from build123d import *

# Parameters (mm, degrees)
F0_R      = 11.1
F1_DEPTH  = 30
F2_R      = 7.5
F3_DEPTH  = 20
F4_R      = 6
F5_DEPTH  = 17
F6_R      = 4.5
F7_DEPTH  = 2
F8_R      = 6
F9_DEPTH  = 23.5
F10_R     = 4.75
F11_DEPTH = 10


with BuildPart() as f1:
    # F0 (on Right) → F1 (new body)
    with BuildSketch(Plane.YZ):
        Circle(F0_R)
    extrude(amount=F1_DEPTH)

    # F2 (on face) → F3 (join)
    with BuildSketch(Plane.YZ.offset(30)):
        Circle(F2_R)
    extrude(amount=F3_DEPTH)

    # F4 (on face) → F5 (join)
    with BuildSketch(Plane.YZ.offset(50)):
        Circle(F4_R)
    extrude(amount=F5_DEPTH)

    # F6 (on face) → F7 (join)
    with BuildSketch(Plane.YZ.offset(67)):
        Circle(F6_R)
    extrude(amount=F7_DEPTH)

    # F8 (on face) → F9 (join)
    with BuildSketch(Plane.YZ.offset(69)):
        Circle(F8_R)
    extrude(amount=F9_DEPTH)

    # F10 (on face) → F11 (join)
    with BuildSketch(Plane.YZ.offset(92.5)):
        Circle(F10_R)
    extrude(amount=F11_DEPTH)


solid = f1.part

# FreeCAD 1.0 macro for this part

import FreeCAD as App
import Part
import Sketcher

V = App.Vector

doc = App.newDocument("Part")
body = doc.addObject("PartDesign::Body", "Body")

sketch1 = body.newObject("Sketcher::SketchObject", "Sketch")
sketch1.AttachmentSupport = (doc.getObject("YZ_Plane"), [""])
sketch1.MapMode = "FlatFace"
sketch1.addGeometry(Part.Circle(V(0, 0, 0), V(0, 0, 1), 11), False)
sketch1.addConstraint(Sketcher.Constraint("Coincident", 0, 3, -1, 1))
sketch1.addConstraint(Sketcher.Constraint("Diameter", 0, 22.2))
pad1 = body.newObject("PartDesign::Pad", "Pad")
pad1.Profile = sketch1
pad1.Length = 30

sketch2 = body.newObject("Sketcher::SketchObject", "Sketch001")
sketch2.AttachmentSupport = (doc.getObject("YZ_Plane"), [""])
sketch2.MapMode = "FlatFace"
sketch2.AttachmentOffset = App.Placement(V(0, 0, 30), App.Rotation())
sketch2.addGeometry(Part.Circle(V(0, 0, 0), V(0, 0, 1), 8), False)
sketch2.addConstraint(Sketcher.Constraint("Coincident", 0, 3, -1, 1))
sketch2.addConstraint(Sketcher.Constraint("Diameter", 0, 15.0))
pad2 = body.newObject("PartDesign::Pad", "Pad001")
pad2.Profile = sketch2
pad2.Length = 20

sketch3 = body.newObject("Sketcher::SketchObject", "Sketch002")
sketch3.AttachmentSupport = (doc.getObject("YZ_Plane"), [""])
sketch3.MapMode = "FlatFace"
sketch3.AttachmentOffset = App.Placement(V(0, 0, 50), App.Rotation())
sketch3.addGeometry(Part.Circle(V(0, 0, 0), V(0, 0, 1), 6), False)
sketch3.addConstraint(Sketcher.Constraint("Coincident", 0, 3, -1, 1))
sketch3.addConstraint(Sketcher.Constraint("Diameter", 0, 12.0))
pad3 = body.newObject("PartDesign::Pad", "Pad002")
pad3.Profile = sketch3
pad3.Length = 17

sketch4 = body.newObject("Sketcher::SketchObject", "Sketch003")
sketch4.AttachmentSupport = (doc.getObject("YZ_Plane"), [""])
sketch4.MapMode = "FlatFace"
sketch4.AttachmentOffset = App.Placement(V(0, 0, 67), App.Rotation())
sketch4.addGeometry(Part.Circle(V(0, 0, 0), V(0, 0, 1), 4.5), False)
sketch4.addConstraint(Sketcher.Constraint("Coincident", 0, 3, -1, 1))
sketch4.addConstraint(Sketcher.Constraint("Diameter", 0, 9.0))
pad4 = body.newObject("PartDesign::Pad", "Pad003")
pad4.Profile = sketch4
pad4.Length = 2

sketch5 = body.newObject("Sketcher::SketchObject", "Sketch004")
sketch5.AttachmentSupport = (doc.getObject("YZ_Plane"), [""])
sketch5.MapMode = "FlatFace"
sketch5.AttachmentOffset = App.Placement(V(0, 0, 69), App.Rotation())
sketch5.addGeometry(Part.Circle(V(0, 0, 0), V(0, 0, 1), 6), False)
sketch5.addConstraint(Sketcher.Constraint("Coincident", 0, 3, -1, 1))
sketch5.addConstraint(Sketcher.Constraint("Diameter", 0, 12.0))
pad5 = body.newObject("PartDesign::Pad", "Pad004")
pad5.Profile = sketch5
pad5.Length = 23.5

sketch6 = body.newObject("Sketcher::SketchObject", "Sketch005")
sketch6.AttachmentSupport = (doc.getObject("YZ_Plane"), [""])
sketch6.MapMode = "FlatFace"
sketch6.AttachmentOffset = App.Placement(V(0, 0, 92.5), App.Rotation())
sketch6.addGeometry(Part.Circle(V(0, 0, 0), V(0, 0, 1), 4.8), False)
sketch6.addConstraint(Sketcher.Constraint("Coincident", 0, 3, -1, 1))
sketch6.addConstraint(Sketcher.Constraint("Diameter", 0, 9.5))
pad6 = body.newObject("PartDesign::Pad", "Pad005")
pad6.Profile = sketch6
pad6.Length = 10

doc.recompute()
